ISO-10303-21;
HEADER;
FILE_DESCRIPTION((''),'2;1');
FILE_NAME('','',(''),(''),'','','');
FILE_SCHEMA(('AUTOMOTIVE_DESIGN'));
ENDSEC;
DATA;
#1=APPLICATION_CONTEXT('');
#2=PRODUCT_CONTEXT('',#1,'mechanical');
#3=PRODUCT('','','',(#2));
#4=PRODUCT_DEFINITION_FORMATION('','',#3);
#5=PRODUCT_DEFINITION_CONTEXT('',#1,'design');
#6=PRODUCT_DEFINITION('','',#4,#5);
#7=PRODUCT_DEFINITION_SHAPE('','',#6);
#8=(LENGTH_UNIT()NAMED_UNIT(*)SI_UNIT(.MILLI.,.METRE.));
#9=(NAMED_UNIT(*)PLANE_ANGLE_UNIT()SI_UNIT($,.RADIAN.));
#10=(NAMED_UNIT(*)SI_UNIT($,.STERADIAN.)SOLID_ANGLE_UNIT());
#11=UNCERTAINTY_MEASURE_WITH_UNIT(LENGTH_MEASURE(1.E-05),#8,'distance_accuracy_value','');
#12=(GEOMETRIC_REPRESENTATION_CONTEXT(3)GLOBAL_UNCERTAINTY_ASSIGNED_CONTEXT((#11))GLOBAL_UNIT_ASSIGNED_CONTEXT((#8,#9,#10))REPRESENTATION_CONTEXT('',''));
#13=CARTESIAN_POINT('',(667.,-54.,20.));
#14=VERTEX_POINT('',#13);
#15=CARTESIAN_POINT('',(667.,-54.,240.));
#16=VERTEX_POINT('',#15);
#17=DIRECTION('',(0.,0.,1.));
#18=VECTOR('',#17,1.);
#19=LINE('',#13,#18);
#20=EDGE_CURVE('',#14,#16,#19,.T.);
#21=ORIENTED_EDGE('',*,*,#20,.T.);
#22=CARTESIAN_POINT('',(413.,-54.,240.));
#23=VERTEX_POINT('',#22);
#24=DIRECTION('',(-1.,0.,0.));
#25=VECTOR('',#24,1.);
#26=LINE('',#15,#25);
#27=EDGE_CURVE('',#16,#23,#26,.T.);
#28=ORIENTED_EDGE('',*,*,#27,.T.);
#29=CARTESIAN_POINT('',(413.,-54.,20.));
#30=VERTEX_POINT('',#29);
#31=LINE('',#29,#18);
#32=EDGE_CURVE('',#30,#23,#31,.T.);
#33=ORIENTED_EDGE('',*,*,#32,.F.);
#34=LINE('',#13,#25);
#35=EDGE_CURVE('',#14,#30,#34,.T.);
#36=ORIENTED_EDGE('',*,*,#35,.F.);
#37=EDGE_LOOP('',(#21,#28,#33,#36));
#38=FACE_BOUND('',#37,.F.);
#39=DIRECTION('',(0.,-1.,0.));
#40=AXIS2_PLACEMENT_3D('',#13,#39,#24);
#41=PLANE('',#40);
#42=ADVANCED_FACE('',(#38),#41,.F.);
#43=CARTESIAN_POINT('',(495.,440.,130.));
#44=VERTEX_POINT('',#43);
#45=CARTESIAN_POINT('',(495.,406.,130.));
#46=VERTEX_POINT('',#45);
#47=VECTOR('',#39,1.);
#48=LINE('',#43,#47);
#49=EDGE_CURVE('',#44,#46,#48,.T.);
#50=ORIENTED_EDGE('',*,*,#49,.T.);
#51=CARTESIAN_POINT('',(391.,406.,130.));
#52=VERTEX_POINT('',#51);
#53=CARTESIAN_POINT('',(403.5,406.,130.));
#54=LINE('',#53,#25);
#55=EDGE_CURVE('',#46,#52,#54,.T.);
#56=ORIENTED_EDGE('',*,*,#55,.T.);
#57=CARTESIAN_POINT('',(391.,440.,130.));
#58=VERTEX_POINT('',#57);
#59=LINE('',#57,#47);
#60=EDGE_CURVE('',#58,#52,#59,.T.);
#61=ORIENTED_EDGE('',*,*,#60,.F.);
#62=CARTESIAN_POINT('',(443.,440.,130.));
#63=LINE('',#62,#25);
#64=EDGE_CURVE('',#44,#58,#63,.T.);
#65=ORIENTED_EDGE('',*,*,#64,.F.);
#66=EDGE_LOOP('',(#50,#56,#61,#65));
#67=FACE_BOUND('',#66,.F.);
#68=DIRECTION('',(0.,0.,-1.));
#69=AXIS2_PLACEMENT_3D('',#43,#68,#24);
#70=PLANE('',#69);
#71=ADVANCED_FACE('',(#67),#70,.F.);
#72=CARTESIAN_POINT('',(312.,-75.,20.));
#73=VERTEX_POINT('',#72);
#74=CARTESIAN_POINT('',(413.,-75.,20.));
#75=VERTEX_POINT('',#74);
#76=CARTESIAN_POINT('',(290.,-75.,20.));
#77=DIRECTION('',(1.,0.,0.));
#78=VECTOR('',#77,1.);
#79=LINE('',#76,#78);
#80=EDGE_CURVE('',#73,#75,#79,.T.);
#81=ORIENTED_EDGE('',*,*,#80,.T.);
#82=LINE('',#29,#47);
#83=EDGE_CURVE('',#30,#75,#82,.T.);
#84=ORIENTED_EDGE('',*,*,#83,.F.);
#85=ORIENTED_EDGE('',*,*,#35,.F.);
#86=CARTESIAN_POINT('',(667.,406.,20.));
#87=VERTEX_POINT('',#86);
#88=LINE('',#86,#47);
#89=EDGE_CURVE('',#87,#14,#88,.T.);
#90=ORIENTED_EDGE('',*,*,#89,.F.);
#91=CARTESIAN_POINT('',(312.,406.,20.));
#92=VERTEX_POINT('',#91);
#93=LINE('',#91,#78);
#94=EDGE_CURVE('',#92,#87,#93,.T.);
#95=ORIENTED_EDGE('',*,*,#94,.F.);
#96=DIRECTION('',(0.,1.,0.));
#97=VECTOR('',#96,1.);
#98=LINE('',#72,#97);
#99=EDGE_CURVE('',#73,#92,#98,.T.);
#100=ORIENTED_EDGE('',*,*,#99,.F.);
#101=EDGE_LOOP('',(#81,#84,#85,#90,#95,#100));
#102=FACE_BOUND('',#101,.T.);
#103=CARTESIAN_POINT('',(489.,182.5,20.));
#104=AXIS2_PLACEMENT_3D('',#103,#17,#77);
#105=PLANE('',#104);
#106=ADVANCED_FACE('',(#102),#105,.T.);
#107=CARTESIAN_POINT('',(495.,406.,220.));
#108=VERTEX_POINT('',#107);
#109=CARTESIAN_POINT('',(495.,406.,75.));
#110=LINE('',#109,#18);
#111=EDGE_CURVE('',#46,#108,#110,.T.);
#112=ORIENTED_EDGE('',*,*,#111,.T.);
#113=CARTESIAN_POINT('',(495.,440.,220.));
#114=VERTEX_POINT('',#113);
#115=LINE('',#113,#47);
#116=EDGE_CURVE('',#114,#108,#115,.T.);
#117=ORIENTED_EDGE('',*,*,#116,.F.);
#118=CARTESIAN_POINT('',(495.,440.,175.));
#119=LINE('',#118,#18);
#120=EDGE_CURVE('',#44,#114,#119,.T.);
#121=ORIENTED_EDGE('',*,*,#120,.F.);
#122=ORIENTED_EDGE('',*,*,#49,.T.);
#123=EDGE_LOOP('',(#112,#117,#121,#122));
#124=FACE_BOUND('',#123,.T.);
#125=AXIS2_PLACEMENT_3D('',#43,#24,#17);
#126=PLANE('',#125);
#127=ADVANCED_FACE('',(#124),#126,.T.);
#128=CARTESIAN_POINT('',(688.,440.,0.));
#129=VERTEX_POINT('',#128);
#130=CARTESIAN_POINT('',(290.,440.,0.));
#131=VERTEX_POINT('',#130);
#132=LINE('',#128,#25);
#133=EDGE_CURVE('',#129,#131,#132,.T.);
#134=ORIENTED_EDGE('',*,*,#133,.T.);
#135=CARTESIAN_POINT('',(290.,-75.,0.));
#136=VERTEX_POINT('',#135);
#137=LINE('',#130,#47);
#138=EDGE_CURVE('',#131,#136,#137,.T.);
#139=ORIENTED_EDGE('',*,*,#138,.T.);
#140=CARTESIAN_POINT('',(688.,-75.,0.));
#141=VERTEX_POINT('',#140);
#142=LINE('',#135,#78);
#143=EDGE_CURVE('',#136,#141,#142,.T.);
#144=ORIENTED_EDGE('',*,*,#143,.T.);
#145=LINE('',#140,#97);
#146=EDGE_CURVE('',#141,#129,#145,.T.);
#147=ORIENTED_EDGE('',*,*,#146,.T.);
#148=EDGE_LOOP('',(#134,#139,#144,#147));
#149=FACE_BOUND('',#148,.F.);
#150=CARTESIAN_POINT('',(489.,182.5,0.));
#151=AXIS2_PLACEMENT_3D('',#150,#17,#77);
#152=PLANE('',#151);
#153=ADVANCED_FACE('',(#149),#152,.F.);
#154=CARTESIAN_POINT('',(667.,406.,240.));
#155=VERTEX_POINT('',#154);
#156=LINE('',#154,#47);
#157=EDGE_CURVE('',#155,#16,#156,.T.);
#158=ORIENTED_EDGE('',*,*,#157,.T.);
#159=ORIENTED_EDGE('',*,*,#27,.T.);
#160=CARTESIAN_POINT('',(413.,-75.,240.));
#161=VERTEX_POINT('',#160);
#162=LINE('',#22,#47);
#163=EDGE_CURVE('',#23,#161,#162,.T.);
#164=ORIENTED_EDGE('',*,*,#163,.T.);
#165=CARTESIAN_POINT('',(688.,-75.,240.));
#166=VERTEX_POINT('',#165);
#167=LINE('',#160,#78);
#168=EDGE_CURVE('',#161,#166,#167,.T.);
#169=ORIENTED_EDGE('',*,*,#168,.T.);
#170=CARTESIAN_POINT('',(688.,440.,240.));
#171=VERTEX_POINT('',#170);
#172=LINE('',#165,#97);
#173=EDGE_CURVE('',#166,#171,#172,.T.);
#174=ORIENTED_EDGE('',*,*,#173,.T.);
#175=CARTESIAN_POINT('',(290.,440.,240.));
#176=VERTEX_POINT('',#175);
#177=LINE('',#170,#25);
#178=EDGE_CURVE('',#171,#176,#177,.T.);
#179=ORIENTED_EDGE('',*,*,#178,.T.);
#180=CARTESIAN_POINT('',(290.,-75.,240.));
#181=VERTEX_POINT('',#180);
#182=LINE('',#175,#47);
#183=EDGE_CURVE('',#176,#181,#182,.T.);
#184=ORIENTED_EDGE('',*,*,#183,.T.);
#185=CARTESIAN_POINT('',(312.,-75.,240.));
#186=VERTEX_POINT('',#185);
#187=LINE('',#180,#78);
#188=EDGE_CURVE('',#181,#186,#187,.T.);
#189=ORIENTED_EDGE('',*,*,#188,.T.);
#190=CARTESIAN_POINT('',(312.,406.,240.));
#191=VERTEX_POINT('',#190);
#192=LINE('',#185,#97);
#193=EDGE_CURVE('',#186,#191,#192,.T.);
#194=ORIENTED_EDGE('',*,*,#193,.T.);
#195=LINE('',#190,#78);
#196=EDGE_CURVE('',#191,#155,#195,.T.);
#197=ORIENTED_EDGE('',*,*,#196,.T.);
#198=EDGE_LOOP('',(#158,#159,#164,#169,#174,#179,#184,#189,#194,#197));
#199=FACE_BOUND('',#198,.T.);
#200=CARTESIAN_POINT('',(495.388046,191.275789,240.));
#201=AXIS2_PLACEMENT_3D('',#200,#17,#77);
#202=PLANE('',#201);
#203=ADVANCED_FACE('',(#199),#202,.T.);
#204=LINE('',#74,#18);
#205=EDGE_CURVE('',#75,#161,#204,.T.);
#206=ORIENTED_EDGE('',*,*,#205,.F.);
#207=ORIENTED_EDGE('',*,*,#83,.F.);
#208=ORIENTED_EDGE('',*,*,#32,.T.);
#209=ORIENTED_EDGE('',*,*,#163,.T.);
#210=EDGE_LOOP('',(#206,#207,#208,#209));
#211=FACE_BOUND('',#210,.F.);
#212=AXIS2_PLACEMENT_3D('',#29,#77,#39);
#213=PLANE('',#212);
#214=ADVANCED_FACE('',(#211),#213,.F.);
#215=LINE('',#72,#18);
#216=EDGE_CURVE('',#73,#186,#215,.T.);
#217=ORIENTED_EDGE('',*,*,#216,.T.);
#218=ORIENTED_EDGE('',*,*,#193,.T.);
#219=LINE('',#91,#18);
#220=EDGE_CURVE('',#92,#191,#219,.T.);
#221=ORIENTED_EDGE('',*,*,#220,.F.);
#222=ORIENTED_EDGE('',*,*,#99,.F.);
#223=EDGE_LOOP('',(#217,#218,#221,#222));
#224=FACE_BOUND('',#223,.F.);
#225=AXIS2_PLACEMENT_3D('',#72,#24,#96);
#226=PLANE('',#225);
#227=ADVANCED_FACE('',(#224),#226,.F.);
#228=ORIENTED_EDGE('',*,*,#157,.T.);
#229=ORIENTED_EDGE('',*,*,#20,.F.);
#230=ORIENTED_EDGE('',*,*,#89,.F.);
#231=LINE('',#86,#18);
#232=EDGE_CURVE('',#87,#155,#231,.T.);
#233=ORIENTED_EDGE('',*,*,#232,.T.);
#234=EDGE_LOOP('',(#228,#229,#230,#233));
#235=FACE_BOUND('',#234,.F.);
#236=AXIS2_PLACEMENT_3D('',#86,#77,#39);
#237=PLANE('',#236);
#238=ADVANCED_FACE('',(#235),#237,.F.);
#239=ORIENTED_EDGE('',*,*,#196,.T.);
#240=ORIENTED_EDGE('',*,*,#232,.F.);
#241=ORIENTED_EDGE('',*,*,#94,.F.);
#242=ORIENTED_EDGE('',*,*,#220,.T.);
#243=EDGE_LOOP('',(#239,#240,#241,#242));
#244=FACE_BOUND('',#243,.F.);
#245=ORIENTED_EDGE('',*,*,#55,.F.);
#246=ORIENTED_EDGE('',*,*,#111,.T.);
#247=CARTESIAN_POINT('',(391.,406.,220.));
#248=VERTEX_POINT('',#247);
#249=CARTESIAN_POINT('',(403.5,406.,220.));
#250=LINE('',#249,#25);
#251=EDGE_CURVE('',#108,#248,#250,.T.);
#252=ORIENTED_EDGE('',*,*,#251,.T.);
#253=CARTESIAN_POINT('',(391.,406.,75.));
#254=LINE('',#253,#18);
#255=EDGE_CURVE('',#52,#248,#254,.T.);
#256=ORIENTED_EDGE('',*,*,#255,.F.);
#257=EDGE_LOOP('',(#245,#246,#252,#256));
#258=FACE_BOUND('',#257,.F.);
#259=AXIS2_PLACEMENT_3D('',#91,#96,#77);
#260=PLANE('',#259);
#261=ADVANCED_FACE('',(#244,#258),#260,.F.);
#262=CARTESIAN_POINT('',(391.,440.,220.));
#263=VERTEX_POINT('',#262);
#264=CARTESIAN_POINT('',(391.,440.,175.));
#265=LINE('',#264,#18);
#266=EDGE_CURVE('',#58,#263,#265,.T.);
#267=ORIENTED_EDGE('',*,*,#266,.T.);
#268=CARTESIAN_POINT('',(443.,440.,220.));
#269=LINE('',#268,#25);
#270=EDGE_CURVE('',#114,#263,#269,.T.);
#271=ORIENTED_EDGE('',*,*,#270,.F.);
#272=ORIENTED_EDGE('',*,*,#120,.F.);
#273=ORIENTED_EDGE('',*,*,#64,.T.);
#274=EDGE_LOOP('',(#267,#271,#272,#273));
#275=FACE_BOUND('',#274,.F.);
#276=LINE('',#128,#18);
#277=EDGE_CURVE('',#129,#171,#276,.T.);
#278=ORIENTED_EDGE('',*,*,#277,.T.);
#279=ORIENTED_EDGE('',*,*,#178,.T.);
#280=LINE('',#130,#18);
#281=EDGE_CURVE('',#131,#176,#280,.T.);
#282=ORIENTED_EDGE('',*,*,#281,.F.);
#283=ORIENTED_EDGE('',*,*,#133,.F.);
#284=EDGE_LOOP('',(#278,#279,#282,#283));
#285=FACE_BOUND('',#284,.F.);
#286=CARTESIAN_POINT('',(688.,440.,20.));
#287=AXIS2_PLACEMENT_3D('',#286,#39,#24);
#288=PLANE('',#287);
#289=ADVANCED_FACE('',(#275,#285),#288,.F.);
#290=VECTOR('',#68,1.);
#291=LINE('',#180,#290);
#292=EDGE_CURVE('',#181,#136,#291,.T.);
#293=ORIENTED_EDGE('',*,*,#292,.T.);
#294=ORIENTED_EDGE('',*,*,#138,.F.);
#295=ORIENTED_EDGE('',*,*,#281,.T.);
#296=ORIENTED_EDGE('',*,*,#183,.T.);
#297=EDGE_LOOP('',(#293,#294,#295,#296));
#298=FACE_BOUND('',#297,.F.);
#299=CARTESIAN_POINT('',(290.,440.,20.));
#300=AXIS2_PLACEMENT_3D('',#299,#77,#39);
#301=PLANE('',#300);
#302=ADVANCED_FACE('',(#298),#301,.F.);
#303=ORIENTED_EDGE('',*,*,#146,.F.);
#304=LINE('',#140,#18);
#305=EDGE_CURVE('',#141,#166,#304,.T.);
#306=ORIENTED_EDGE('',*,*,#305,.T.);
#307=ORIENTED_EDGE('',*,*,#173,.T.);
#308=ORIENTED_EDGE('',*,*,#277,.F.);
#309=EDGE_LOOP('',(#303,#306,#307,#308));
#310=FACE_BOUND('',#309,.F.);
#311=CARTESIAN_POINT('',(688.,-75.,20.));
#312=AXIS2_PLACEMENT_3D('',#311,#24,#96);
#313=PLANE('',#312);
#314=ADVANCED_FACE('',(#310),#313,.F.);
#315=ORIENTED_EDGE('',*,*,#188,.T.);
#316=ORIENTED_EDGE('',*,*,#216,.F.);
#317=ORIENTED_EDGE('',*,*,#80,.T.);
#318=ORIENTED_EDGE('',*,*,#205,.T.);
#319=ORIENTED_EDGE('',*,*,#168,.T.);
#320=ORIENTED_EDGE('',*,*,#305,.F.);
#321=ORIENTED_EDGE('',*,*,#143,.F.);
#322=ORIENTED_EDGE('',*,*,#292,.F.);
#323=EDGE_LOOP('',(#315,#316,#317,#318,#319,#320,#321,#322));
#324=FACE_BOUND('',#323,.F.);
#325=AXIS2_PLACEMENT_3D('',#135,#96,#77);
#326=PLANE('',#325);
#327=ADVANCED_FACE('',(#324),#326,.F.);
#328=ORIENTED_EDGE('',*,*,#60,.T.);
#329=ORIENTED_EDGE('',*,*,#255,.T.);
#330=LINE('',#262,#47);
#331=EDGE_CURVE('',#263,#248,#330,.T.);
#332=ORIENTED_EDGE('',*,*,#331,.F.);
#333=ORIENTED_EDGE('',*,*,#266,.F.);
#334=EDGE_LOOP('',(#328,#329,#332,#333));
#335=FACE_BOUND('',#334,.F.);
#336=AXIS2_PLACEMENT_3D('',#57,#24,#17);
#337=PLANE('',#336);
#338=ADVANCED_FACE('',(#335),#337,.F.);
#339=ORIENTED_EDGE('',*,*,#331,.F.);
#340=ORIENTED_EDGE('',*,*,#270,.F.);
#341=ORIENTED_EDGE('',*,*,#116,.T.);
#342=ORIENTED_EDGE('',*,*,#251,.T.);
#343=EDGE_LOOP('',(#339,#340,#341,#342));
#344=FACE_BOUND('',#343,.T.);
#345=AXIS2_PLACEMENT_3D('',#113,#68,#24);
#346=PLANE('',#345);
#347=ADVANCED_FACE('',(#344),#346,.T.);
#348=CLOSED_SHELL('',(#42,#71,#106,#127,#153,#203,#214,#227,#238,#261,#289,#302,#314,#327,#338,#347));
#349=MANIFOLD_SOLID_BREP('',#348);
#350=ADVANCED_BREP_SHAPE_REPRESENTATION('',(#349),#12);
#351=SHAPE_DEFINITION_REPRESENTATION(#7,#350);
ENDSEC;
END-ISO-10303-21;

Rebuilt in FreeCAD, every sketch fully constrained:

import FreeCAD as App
import Part
import Sketcher
from FreeCAD import Vector

doc = App.newDocument("Part")
body = doc.addObject("PartDesign::Body", "Body")

# Sketch on XY plane
sketch1 = doc.addObject("Sketcher::SketchObject", "Sketch")
body.addObject(sketch1)
sketch1.AttachmentSupport = (doc.XY_Plane, [""])
sketch1.MapMode = "FlatFace"
sketch1.addGeometry([
    Part.LineSegment(Vector(688, -75, 0), Vector(688, 440, 0)),
    Part.LineSegment(Vector(688, 440, 0), Vector(290, 440, 0)),
    Part.LineSegment(Vector(290, 440, 0), Vector(290, -75, 0)),
    Part.LineSegment(Vector(290, -75, 0), Vector(688, -75, 0)),
], False)
sketch1.addConstraint([
    Sketcher.Constraint("Coincident", 0, 2, 1, 1),
    Sketcher.Constraint("Coincident", 1, 2, 2, 1),
    Sketcher.Constraint("Coincident", 2, 2, 3, 1),
    Sketcher.Constraint("Coincident", 3, 2, 0, 1),
    Sketcher.Constraint("Vertical", 0),
    Sketcher.Constraint("Horizontal", 1),
    Sketcher.Constraint("Vertical", 2),
    Sketcher.Constraint("Horizontal", 3),
    Sketcher.Constraint("DistanceX", 1, 2, 1, 1, 398.0),
    Sketcher.Constraint("DistanceY", 0, 1, 0, 2, 515.0),
    Sketcher.Constraint("DistanceX", -1, 1, 0, 2, 688.0),
    Sketcher.Constraint("DistanceY", -1, 1, 0, 2, 440.0),
])
pad1 = doc.addObject("PartDesign::Pad", "Pad")
body.addObject(pad1)
pad1.Profile = sketch1
pad1.Length = 20

# Sketch on XY plane
sketch2 = doc.addObject("Sketcher::SketchObject", "Sketch001")
body.addObject(sketch2)
sketch2.AttachmentSupport = (doc.XY_Plane, [""])
sketch2.MapMode = "FlatFace"
sketch2.AttachmentOffset = App.Placement(Vector(0, 0, 20), App.Rotation())
sketch2.addGeometry([
    Part.LineSegment(Vector(667, 406, 0), Vector(667, -54, 0)),  # 0
    Part.LineSegment(Vector(667, -54, 0), Vector(413, -54, 0)),  # 1
    Part.LineSegment(Vector(413, -54, 0), Vector(413, -75, 0)),  # 2
    Part.LineSegment(Vector(413, -75, 0), Vector(688, -75, 0)),  # 3
    Part.LineSegment(Vector(688, -75, 0), Vector(688, 440, 0)),  # 4
    Part.LineSegment(Vector(688, 440, 0), Vector(290, 440, 0)),  # 5
    Part.LineSegment(Vector(290, 440, 0), Vector(290, -75, 0)),  # 6
    Part.LineSegment(Vector(290, -75, 0), Vector(312, -75, 0)),  # 7
    Part.LineSegment(Vector(312, -75, 0), Vector(312, 406, 0)),  # 8
    Part.LineSegment(Vector(312, 406, 0), Vector(667, 406, 0)),  # 9
], False)
sketch2.addConstraint([
    Sketcher.Constraint("Coincident", 0, 2, 1, 1),
    Sketcher.Constraint("Coincident", 1, 2, 2, 1),
    Sketcher.Constraint("Coincident", 2, 2, 3, 1),
    Sketcher.Constraint("Coincident", 3, 2, 4, 1),
    Sketcher.Constraint("Coincident", 4, 2, 5, 1),
    Sketcher.Constraint("Coincident", 5, 2, 6, 1),
    Sketcher.Constraint("Coincident", 6, 2, 7, 1),
    Sketcher.Constraint("Coincident", 7, 2, 8, 1),
    Sketcher.Constraint("Coincident", 8, 2, 9, 1),
    Sketcher.Constraint("Coincident", 9, 2, 0, 1),
    Sketcher.Constraint("Vertical", 0),
    Sketcher.Constraint("Horizontal", 1),
    Sketcher.Constraint("Vertical", 2),
    Sketcher.Constraint("Horizontal", 3),
    Sketcher.Constraint("Vertical", 4),
    Sketcher.Constraint("Horizontal", 5),
    Sketcher.Constraint("Vertical", 6),
    Sketcher.Constraint("Horizontal", 7),
    Sketcher.Constraint("Vertical", 8),
    Sketcher.Constraint("Horizontal", 9),
    Sketcher.Constraint("Horizontal", 3, 2, 6, 2),
    Sketcher.Constraint("DistanceX", 1, 2, 1, 1, 254.0),
    Sketcher.Constraint("DistanceX", 3, 1, 3, 2, 275.0),
    Sketcher.Constraint("DistanceX", 5, 2, 5, 1, 398.0),
    Sketcher.Constraint("DistanceX", 7, 1, 7, 2, 22.0),
    Sketcher.Constraint("DistanceY", 0, 2, 0, 1, 460.0),
    Sketcher.Constraint("DistanceY", 2, 2, 2, 1, 21.0),
    Sketcher.Constraint("DistanceY", 4, 1, 4, 2, 515.0),
    Sketcher.Constraint("DistanceX", -1, 1, 0, 2, 667.0),
    Sketcher.Constraint("DistanceY", 0, 2, -1, 1, 54.0),
])
pad2 = doc.addObject("PartDesign::Pad", "Pad001")
body.addObject(pad2)
pad2.Profile = sketch2
pad2.Length = 220

# Sketch on XZ plane
sketch3 = doc.addObject("Sketcher::SketchObject", "Sketch002")
body.addObject(sketch3)
sketch3.AttachmentSupport = (doc.XZ_Plane, [""])
sketch3.MapMode = "FlatFace"
sketch3.AttachmentOffset = App.Placement(Vector(0, 0, -440), App.Rotation())
sketch3.addGeometry([
    Part.LineSegment(Vector(495, 220, 0), Vector(495, 130, 0)),
    Part.LineSegment(Vector(495, 130, 0), Vector(391, 130, 0)),
    Part.LineSegment(Vector(391, 130, 0), Vector(391, 220, 0)),
    Part.LineSegment(Vector(391, 220, 0), Vector(495, 220, 0)),
], False)
sketch3.addConstraint([
    Sketcher.Constraint("Coincident", 0, 2, 1, 1),
    Sketcher.Constraint("Coincident", 1, 2, 2, 1),
    Sketcher.Constraint("Coincident", 2, 2, 3, 1),
    Sketcher.Constraint("Coincident", 3, 2, 0, 1),
    Sketcher.Constraint("Vertical", 0),
    Sketcher.Constraint("Horizontal", 1),
    Sketcher.Constraint("Vertical", 2),
    Sketcher.Constraint("Horizontal", 3),
    Sketcher.Constraint("DistanceX", 1, 2, 1, 1, 104.0),
    Sketcher.Constraint("DistanceY", 0, 2, 0, 1, 90.0),
    Sketcher.Constraint("DistanceX", -1, 1, 0, 2, 495.0),
    Sketcher.Constraint("DistanceY", -1, 1, 0, 2, 130.0),
])
pocket1 = doc.addObject("PartDesign::Pocket", "Pocket")
body.addObject(pocket1)
pocket1.Profile = sketch3
pocket1.Length = 40
pocket1.Reversed = True

doc.recompute()
